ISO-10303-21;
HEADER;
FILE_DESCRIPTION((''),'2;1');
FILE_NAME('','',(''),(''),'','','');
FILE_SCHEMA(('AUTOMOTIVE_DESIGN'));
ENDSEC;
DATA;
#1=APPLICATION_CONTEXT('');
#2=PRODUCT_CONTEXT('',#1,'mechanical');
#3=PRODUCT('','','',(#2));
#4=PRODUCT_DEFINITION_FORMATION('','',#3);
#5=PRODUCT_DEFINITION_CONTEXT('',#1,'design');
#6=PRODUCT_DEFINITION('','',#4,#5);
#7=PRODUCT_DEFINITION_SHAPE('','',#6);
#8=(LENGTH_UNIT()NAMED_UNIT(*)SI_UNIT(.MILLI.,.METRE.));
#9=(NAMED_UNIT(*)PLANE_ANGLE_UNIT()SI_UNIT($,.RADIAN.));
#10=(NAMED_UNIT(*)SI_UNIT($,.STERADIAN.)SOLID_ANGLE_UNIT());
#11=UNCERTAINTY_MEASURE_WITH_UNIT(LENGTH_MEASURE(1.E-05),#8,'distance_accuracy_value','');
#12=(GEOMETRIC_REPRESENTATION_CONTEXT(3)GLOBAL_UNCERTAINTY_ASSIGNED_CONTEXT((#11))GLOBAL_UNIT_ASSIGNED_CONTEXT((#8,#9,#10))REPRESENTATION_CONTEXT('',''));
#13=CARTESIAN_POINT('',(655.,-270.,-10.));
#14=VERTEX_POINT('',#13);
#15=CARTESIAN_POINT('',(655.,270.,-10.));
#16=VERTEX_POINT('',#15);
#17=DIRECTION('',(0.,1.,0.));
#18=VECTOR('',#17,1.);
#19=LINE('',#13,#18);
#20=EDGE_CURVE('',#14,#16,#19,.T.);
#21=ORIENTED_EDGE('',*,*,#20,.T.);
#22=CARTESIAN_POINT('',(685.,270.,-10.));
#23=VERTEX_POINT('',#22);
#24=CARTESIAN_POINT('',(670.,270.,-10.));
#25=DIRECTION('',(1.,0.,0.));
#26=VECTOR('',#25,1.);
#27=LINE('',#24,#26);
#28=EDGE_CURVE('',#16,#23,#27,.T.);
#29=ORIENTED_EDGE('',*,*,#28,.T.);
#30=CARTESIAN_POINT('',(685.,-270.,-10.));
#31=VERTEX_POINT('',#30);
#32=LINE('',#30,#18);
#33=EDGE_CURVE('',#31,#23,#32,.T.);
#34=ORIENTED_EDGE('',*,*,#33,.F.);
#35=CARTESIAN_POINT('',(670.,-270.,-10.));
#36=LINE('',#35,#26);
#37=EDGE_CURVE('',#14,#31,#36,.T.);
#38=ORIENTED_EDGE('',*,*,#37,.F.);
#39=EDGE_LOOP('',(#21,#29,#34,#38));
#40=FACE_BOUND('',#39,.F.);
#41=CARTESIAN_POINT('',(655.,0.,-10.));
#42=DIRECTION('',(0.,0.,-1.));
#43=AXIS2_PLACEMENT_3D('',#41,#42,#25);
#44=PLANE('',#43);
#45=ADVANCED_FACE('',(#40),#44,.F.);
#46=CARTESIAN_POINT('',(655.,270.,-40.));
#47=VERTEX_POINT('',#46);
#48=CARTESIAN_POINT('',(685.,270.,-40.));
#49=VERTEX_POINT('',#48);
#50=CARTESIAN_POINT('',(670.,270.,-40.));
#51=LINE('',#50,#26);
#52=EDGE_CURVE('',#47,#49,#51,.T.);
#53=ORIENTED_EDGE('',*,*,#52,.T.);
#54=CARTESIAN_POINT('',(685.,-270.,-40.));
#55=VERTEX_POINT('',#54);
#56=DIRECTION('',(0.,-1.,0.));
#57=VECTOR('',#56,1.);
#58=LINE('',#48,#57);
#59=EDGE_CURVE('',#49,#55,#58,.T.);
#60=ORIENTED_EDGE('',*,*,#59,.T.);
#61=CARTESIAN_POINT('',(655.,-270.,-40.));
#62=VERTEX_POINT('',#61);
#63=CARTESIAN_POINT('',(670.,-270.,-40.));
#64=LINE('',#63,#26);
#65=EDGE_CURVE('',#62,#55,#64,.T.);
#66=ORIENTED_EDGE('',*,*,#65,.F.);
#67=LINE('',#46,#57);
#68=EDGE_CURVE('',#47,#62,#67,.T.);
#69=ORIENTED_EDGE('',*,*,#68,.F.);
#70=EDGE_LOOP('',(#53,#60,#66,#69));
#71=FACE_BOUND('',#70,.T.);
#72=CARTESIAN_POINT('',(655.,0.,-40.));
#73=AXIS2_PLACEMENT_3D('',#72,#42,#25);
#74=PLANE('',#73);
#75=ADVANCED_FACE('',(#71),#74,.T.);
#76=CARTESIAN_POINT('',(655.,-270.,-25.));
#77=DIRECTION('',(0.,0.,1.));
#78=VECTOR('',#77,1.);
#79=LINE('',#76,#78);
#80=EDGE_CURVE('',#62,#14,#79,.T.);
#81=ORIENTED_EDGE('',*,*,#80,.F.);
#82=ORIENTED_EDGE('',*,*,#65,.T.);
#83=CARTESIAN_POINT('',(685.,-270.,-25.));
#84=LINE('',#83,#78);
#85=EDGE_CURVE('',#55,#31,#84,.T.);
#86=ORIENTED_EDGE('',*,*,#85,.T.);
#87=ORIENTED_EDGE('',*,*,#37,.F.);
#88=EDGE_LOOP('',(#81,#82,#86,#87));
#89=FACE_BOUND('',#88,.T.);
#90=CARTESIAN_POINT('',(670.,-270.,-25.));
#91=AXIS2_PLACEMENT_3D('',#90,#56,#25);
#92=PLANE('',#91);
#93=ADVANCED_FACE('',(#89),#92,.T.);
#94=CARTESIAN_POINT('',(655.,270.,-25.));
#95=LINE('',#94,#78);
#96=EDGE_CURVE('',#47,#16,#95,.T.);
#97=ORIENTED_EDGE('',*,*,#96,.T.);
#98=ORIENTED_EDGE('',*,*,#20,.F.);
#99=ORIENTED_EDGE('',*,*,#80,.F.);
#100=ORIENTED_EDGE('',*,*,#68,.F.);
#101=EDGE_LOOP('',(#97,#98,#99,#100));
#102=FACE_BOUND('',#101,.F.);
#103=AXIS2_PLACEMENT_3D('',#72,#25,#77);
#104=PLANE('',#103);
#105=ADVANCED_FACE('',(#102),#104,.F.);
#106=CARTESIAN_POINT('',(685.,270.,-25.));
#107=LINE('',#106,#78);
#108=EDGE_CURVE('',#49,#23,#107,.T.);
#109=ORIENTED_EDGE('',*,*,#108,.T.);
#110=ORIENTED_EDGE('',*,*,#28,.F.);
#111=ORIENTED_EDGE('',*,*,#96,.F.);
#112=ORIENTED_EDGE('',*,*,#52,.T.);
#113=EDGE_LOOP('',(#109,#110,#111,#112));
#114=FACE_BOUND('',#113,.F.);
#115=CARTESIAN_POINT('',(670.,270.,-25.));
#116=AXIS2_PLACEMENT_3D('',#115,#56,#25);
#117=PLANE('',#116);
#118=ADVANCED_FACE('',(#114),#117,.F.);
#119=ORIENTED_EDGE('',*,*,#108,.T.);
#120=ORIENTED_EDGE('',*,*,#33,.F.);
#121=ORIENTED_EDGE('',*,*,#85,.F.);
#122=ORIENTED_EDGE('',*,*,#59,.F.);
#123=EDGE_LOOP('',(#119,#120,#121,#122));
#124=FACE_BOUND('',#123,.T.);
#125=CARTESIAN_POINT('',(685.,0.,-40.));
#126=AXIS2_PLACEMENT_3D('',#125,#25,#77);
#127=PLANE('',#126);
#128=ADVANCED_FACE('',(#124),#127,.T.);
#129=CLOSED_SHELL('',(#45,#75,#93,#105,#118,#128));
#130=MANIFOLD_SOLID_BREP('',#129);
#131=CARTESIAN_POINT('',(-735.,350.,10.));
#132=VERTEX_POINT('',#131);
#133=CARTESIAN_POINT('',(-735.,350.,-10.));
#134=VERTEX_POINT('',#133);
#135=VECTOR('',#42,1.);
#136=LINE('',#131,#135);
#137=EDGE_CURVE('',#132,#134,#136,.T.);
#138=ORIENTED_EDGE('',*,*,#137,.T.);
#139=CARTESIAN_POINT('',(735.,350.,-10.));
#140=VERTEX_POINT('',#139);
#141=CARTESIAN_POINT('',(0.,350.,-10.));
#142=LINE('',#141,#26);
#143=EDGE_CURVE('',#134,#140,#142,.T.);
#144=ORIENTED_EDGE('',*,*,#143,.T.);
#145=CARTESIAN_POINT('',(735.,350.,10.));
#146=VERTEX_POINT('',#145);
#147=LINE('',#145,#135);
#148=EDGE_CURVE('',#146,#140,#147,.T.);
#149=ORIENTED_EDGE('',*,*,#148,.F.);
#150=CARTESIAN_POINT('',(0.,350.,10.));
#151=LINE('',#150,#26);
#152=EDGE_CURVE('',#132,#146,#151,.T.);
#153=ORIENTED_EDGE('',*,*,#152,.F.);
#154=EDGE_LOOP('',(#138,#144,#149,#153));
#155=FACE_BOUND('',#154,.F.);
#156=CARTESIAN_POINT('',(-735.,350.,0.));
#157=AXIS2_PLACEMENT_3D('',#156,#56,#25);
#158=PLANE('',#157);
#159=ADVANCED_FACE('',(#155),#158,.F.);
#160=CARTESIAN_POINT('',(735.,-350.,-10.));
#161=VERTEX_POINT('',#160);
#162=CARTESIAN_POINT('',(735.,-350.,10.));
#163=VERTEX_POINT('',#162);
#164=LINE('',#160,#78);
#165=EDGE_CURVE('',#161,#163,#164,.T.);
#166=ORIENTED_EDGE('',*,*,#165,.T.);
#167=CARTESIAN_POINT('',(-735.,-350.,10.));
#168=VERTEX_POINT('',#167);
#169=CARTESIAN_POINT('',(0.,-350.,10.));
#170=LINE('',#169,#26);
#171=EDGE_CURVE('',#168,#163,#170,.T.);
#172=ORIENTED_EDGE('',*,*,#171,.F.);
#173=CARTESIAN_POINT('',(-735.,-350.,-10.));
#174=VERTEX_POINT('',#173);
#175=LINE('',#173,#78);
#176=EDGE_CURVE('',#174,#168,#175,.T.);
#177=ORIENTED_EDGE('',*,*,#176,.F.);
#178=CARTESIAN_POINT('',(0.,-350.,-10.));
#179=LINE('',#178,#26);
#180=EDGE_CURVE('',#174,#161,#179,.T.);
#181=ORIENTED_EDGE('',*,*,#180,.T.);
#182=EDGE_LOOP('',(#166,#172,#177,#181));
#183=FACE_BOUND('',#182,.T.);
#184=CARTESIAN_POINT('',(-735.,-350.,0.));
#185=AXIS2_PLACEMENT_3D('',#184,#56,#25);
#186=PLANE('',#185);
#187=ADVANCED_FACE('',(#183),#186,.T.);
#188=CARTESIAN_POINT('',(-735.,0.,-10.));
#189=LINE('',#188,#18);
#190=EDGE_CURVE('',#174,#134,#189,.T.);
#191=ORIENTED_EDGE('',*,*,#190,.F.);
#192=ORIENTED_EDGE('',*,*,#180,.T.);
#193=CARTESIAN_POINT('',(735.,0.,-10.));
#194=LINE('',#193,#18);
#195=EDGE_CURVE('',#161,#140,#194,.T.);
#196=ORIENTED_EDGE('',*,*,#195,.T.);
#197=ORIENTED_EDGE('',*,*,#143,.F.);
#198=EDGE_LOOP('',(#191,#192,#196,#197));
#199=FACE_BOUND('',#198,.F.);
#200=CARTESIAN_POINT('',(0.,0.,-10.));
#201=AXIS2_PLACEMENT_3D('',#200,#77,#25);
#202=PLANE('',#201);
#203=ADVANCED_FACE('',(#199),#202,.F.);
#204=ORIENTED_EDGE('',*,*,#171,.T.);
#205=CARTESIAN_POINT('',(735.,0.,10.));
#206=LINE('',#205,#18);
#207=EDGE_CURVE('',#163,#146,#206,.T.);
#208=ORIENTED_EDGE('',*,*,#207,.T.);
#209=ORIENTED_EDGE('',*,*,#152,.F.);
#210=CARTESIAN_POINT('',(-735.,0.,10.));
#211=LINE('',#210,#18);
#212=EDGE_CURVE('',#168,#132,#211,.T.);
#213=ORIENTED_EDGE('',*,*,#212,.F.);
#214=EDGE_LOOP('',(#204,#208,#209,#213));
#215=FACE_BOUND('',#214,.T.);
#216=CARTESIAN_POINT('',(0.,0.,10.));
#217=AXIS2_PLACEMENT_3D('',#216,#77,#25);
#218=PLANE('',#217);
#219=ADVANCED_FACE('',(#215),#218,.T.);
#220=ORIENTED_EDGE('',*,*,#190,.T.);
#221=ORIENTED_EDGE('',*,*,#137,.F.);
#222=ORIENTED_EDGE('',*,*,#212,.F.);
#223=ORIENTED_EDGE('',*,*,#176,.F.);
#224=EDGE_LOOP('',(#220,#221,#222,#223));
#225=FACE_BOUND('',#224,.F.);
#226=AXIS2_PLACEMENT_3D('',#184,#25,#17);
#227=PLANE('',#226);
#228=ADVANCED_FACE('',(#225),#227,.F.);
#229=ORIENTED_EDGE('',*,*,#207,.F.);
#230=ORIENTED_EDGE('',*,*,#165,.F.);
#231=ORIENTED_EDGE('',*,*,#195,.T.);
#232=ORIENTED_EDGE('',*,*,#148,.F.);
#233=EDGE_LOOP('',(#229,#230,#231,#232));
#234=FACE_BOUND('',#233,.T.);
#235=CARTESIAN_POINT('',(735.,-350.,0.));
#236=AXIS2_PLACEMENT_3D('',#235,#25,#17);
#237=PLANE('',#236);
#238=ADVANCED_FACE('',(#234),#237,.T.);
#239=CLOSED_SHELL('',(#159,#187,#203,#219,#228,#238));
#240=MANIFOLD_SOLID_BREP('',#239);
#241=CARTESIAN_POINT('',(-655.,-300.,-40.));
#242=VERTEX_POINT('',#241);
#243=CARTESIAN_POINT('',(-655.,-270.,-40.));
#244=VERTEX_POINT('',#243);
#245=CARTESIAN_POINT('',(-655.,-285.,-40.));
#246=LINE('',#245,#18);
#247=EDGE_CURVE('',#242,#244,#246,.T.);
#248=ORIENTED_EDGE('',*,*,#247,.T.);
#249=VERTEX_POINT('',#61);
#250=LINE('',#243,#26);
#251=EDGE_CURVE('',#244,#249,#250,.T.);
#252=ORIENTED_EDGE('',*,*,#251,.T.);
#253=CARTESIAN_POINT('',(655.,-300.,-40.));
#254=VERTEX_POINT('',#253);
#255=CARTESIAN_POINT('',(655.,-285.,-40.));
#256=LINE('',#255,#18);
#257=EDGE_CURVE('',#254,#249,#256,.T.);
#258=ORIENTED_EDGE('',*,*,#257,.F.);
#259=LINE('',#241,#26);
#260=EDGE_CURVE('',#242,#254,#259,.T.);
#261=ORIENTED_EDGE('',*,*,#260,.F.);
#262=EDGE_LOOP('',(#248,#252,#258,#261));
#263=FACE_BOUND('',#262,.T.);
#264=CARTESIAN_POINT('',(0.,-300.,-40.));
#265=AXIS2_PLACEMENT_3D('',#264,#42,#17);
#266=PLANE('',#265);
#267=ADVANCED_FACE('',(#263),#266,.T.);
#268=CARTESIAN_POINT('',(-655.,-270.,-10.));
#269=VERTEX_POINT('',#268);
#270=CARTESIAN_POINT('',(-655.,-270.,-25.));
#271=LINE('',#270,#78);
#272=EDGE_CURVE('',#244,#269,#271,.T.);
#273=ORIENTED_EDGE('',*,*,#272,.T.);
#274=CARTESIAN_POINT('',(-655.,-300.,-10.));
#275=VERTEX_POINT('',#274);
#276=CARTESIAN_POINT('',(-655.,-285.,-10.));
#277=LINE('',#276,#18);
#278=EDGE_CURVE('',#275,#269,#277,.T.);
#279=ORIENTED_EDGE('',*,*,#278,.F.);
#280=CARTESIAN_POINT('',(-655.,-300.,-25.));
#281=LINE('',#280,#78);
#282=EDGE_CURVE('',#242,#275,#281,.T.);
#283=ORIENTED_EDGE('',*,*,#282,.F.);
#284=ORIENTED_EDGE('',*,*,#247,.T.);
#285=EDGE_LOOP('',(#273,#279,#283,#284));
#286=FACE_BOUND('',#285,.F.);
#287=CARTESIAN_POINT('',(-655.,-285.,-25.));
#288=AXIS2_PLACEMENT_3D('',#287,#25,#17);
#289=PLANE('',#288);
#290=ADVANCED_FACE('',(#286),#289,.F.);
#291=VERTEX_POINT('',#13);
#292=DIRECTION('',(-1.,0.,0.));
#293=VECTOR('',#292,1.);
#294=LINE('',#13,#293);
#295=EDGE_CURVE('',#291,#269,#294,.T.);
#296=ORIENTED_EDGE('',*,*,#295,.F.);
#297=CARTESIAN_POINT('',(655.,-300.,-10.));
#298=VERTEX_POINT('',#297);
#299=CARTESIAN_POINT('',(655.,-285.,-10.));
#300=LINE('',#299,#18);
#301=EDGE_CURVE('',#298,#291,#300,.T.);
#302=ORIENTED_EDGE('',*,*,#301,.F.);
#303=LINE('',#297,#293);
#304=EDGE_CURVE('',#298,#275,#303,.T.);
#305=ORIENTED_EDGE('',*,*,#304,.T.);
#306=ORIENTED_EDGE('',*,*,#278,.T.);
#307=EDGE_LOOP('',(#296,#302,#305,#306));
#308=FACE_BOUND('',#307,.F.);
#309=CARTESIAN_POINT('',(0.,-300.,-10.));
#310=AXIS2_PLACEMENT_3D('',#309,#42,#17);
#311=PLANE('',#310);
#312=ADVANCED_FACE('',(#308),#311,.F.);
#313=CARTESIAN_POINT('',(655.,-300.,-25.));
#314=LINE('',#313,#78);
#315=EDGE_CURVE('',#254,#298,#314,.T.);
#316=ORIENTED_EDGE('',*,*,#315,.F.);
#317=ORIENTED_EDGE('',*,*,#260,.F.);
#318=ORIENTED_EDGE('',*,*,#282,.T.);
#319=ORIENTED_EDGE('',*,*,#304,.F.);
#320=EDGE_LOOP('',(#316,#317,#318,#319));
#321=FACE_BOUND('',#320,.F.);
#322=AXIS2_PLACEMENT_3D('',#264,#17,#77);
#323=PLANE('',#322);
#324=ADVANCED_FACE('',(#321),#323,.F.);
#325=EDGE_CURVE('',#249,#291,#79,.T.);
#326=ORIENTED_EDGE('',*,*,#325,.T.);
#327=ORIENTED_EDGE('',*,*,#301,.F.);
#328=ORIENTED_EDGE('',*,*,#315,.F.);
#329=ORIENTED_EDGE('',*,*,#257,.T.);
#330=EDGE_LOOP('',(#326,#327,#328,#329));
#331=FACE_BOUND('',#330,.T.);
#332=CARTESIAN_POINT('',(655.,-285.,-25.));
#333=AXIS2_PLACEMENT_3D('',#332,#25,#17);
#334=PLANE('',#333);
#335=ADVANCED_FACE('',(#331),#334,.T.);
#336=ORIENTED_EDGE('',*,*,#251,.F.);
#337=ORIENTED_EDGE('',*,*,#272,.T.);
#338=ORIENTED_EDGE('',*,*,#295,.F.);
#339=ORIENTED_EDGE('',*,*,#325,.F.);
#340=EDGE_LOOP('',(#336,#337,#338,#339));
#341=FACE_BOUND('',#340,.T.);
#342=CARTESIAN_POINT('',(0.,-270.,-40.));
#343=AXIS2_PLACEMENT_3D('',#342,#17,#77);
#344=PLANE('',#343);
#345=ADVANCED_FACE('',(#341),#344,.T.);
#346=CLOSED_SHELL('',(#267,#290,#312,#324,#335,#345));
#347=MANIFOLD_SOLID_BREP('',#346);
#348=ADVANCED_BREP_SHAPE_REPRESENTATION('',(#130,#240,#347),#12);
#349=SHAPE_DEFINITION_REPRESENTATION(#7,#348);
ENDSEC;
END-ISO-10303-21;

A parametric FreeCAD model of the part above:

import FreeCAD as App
import Part
import Sketcher
from FreeCAD import Vector
Q = App.Units.Quantity


def add_polygon(sketch, points):
    """Adds a closed chain of lines whose ends are joined by coincident constraints."""
    first, n = sketch.GeometryCount, len(points)
    for a, b in zip(points, points[1:] + points[:1]):
        sketch.addGeometry(Part.LineSegment(App.Vector(*a, 0), App.Vector(*b, 0)), False)
    for i in range(n):
        sketch.addConstraint(Sketcher.Constraint("Coincident", first + i, 2, first + (i + 1) % n, 1))

doc = App.newDocument("Part")
params = doc.addObject("Spreadsheet::Sheet", "Params")
for row, (alias, value) in enumerate([
    ("sketch1_width", "1470 mm"),
    ("sketch1_height", "700 mm"),
    ("pad1_length", "20 mm"),
    ("sketch2_width", "30 mm"),
    ("pad2_length", "540 mm"),
    ("sketch3_width", "30 mm"),
    ("pad3_length", "1310 mm"),
], start=1):
    params.set(f"A{row}", alias)
    params.set(f"B{row}", "=" + value)
    params.setAlias(f"B{row}", alias)

body = doc.addObject("PartDesign::Body", "Body")

# Sketch on XY plane
sketch1 = body.newObject("Sketcher::SketchObject", "Sketch")
sketch1.AttachmentSupport = (doc.getObject("XY_Plane"), [""])
sketch1.MapMode = "FlatFace"
add_polygon(sketch1, [(-735, 350), (-735, -350), (735, -350), (735, 350)])  # lines 0-3
sketch1.addConstraint([
    Sketcher.Constraint("Vertical", 0),
    Sketcher.Constraint("Horizontal", 1),
    Sketcher.Constraint("Vertical", 2),
    Sketcher.Constraint("Horizontal", 3),
    Sketcher.Constraint("Symmetric", 0, 2, 2, 2, -1, 1),
    Sketcher.Constraint("DistanceX", 1, 1, 1, 2, Q("1470 mm")),
    Sketcher.Constraint("DistanceY", 0, 2, 0, 1, Q("700 mm")),
])
sketch1.setExpression("Constraints[9]", "Params.sketch1_width")
sketch1.setExpression("Constraints[10]", "Params.sketch1_height")
pad1 = body.newObject("PartDesign::Pad", "Pad")
pad1.Profile = sketch1
pad1.setExpression("Length", "Params.pad1_length")
pad1.Midplane = True
body2 = doc.addObject("PartDesign::Body", "Body001")

# Sketch on XZ plane
sketch2 = body2.newObject("Sketcher::SketchObject", "Sketch001")
sketch2.AttachmentSupport = (doc.getObject("XZ_Plane001"), [""])
sketch2.MapMode = "FlatFace"
add_polygon(sketch2, [(655, -10), (655, -40), (685, -40), (685, -10)])  # lines 0-3
sketch2.addConstraint([
    Sketcher.Constraint("Vertical", 0),
    Sketcher.Constraint("Horizontal", 1),
    Sketcher.Constraint("Vertical", 2),
    Sketcher.Constraint("Horizontal", 3),
    Sketcher.Constraint("Equal", 3, 0),
    Sketcher.Constraint("DistanceX", 1, 1, 1, 2, Q("30 mm")),
    Sketcher.Constraint("DistanceX", -1, 1, 0, 2, Q("655 mm")),
    Sketcher.Constraint("DistanceY", 0, 2, -1, 1, Q("40 mm")),
])
sketch2.setExpression("Constraints[9]", "Params.sketch2_width")
pad2 = body2.newObject("PartDesign::Pad", "Pad001")
pad2.Profile = sketch2
pad2.setExpression("Length", "Params.pad2_length")
pad2.Midplane = True
body3 = doc.addObject("PartDesign::Body", "Body002")

# Sketch on YZ plane
sketch3 = body3.newObject("Sketcher::SketchObject", "Sketch002")
sketch3.AttachmentSupport = (doc.getObject("YZ_Plane002"), [""])
sketch3.MapMode = "FlatFace"
add_polygon(sketch3, [(-300, -10), (-300, -40), (-270, -40), (-270, -10)])  # lines 0-3
sketch3.addConstraint([
    Sketcher.Constraint("Vertical", 0),
    Sketcher.Constraint("Horizontal", 1),
    Sketcher.Constraint("Vertical", 2),
    Sketcher.Constraint("Horizontal", 3),
    Sketcher.Constraint("Equal", 3, 0),
    Sketcher.Constraint("DistanceX", 1, 1, 1, 2, Q("30 mm")),
    Sketcher.Constraint("DistanceX", 0, 2, -1, 1, Q("300 mm")),
    Sketcher.Constraint("DistanceY", 0, 2, -1, 1, Q("40 mm")),
])
sketch3.setExpression("Constraints[9]", "Params.sketch3_width")
pad3 = body3.newObject("PartDesign::Pad", "Pad002")
pad3.Profile = sketch3
pad3.setExpression("Length", "Params.pad3_length")
pad3.Midplane = True

doc.recompute()
